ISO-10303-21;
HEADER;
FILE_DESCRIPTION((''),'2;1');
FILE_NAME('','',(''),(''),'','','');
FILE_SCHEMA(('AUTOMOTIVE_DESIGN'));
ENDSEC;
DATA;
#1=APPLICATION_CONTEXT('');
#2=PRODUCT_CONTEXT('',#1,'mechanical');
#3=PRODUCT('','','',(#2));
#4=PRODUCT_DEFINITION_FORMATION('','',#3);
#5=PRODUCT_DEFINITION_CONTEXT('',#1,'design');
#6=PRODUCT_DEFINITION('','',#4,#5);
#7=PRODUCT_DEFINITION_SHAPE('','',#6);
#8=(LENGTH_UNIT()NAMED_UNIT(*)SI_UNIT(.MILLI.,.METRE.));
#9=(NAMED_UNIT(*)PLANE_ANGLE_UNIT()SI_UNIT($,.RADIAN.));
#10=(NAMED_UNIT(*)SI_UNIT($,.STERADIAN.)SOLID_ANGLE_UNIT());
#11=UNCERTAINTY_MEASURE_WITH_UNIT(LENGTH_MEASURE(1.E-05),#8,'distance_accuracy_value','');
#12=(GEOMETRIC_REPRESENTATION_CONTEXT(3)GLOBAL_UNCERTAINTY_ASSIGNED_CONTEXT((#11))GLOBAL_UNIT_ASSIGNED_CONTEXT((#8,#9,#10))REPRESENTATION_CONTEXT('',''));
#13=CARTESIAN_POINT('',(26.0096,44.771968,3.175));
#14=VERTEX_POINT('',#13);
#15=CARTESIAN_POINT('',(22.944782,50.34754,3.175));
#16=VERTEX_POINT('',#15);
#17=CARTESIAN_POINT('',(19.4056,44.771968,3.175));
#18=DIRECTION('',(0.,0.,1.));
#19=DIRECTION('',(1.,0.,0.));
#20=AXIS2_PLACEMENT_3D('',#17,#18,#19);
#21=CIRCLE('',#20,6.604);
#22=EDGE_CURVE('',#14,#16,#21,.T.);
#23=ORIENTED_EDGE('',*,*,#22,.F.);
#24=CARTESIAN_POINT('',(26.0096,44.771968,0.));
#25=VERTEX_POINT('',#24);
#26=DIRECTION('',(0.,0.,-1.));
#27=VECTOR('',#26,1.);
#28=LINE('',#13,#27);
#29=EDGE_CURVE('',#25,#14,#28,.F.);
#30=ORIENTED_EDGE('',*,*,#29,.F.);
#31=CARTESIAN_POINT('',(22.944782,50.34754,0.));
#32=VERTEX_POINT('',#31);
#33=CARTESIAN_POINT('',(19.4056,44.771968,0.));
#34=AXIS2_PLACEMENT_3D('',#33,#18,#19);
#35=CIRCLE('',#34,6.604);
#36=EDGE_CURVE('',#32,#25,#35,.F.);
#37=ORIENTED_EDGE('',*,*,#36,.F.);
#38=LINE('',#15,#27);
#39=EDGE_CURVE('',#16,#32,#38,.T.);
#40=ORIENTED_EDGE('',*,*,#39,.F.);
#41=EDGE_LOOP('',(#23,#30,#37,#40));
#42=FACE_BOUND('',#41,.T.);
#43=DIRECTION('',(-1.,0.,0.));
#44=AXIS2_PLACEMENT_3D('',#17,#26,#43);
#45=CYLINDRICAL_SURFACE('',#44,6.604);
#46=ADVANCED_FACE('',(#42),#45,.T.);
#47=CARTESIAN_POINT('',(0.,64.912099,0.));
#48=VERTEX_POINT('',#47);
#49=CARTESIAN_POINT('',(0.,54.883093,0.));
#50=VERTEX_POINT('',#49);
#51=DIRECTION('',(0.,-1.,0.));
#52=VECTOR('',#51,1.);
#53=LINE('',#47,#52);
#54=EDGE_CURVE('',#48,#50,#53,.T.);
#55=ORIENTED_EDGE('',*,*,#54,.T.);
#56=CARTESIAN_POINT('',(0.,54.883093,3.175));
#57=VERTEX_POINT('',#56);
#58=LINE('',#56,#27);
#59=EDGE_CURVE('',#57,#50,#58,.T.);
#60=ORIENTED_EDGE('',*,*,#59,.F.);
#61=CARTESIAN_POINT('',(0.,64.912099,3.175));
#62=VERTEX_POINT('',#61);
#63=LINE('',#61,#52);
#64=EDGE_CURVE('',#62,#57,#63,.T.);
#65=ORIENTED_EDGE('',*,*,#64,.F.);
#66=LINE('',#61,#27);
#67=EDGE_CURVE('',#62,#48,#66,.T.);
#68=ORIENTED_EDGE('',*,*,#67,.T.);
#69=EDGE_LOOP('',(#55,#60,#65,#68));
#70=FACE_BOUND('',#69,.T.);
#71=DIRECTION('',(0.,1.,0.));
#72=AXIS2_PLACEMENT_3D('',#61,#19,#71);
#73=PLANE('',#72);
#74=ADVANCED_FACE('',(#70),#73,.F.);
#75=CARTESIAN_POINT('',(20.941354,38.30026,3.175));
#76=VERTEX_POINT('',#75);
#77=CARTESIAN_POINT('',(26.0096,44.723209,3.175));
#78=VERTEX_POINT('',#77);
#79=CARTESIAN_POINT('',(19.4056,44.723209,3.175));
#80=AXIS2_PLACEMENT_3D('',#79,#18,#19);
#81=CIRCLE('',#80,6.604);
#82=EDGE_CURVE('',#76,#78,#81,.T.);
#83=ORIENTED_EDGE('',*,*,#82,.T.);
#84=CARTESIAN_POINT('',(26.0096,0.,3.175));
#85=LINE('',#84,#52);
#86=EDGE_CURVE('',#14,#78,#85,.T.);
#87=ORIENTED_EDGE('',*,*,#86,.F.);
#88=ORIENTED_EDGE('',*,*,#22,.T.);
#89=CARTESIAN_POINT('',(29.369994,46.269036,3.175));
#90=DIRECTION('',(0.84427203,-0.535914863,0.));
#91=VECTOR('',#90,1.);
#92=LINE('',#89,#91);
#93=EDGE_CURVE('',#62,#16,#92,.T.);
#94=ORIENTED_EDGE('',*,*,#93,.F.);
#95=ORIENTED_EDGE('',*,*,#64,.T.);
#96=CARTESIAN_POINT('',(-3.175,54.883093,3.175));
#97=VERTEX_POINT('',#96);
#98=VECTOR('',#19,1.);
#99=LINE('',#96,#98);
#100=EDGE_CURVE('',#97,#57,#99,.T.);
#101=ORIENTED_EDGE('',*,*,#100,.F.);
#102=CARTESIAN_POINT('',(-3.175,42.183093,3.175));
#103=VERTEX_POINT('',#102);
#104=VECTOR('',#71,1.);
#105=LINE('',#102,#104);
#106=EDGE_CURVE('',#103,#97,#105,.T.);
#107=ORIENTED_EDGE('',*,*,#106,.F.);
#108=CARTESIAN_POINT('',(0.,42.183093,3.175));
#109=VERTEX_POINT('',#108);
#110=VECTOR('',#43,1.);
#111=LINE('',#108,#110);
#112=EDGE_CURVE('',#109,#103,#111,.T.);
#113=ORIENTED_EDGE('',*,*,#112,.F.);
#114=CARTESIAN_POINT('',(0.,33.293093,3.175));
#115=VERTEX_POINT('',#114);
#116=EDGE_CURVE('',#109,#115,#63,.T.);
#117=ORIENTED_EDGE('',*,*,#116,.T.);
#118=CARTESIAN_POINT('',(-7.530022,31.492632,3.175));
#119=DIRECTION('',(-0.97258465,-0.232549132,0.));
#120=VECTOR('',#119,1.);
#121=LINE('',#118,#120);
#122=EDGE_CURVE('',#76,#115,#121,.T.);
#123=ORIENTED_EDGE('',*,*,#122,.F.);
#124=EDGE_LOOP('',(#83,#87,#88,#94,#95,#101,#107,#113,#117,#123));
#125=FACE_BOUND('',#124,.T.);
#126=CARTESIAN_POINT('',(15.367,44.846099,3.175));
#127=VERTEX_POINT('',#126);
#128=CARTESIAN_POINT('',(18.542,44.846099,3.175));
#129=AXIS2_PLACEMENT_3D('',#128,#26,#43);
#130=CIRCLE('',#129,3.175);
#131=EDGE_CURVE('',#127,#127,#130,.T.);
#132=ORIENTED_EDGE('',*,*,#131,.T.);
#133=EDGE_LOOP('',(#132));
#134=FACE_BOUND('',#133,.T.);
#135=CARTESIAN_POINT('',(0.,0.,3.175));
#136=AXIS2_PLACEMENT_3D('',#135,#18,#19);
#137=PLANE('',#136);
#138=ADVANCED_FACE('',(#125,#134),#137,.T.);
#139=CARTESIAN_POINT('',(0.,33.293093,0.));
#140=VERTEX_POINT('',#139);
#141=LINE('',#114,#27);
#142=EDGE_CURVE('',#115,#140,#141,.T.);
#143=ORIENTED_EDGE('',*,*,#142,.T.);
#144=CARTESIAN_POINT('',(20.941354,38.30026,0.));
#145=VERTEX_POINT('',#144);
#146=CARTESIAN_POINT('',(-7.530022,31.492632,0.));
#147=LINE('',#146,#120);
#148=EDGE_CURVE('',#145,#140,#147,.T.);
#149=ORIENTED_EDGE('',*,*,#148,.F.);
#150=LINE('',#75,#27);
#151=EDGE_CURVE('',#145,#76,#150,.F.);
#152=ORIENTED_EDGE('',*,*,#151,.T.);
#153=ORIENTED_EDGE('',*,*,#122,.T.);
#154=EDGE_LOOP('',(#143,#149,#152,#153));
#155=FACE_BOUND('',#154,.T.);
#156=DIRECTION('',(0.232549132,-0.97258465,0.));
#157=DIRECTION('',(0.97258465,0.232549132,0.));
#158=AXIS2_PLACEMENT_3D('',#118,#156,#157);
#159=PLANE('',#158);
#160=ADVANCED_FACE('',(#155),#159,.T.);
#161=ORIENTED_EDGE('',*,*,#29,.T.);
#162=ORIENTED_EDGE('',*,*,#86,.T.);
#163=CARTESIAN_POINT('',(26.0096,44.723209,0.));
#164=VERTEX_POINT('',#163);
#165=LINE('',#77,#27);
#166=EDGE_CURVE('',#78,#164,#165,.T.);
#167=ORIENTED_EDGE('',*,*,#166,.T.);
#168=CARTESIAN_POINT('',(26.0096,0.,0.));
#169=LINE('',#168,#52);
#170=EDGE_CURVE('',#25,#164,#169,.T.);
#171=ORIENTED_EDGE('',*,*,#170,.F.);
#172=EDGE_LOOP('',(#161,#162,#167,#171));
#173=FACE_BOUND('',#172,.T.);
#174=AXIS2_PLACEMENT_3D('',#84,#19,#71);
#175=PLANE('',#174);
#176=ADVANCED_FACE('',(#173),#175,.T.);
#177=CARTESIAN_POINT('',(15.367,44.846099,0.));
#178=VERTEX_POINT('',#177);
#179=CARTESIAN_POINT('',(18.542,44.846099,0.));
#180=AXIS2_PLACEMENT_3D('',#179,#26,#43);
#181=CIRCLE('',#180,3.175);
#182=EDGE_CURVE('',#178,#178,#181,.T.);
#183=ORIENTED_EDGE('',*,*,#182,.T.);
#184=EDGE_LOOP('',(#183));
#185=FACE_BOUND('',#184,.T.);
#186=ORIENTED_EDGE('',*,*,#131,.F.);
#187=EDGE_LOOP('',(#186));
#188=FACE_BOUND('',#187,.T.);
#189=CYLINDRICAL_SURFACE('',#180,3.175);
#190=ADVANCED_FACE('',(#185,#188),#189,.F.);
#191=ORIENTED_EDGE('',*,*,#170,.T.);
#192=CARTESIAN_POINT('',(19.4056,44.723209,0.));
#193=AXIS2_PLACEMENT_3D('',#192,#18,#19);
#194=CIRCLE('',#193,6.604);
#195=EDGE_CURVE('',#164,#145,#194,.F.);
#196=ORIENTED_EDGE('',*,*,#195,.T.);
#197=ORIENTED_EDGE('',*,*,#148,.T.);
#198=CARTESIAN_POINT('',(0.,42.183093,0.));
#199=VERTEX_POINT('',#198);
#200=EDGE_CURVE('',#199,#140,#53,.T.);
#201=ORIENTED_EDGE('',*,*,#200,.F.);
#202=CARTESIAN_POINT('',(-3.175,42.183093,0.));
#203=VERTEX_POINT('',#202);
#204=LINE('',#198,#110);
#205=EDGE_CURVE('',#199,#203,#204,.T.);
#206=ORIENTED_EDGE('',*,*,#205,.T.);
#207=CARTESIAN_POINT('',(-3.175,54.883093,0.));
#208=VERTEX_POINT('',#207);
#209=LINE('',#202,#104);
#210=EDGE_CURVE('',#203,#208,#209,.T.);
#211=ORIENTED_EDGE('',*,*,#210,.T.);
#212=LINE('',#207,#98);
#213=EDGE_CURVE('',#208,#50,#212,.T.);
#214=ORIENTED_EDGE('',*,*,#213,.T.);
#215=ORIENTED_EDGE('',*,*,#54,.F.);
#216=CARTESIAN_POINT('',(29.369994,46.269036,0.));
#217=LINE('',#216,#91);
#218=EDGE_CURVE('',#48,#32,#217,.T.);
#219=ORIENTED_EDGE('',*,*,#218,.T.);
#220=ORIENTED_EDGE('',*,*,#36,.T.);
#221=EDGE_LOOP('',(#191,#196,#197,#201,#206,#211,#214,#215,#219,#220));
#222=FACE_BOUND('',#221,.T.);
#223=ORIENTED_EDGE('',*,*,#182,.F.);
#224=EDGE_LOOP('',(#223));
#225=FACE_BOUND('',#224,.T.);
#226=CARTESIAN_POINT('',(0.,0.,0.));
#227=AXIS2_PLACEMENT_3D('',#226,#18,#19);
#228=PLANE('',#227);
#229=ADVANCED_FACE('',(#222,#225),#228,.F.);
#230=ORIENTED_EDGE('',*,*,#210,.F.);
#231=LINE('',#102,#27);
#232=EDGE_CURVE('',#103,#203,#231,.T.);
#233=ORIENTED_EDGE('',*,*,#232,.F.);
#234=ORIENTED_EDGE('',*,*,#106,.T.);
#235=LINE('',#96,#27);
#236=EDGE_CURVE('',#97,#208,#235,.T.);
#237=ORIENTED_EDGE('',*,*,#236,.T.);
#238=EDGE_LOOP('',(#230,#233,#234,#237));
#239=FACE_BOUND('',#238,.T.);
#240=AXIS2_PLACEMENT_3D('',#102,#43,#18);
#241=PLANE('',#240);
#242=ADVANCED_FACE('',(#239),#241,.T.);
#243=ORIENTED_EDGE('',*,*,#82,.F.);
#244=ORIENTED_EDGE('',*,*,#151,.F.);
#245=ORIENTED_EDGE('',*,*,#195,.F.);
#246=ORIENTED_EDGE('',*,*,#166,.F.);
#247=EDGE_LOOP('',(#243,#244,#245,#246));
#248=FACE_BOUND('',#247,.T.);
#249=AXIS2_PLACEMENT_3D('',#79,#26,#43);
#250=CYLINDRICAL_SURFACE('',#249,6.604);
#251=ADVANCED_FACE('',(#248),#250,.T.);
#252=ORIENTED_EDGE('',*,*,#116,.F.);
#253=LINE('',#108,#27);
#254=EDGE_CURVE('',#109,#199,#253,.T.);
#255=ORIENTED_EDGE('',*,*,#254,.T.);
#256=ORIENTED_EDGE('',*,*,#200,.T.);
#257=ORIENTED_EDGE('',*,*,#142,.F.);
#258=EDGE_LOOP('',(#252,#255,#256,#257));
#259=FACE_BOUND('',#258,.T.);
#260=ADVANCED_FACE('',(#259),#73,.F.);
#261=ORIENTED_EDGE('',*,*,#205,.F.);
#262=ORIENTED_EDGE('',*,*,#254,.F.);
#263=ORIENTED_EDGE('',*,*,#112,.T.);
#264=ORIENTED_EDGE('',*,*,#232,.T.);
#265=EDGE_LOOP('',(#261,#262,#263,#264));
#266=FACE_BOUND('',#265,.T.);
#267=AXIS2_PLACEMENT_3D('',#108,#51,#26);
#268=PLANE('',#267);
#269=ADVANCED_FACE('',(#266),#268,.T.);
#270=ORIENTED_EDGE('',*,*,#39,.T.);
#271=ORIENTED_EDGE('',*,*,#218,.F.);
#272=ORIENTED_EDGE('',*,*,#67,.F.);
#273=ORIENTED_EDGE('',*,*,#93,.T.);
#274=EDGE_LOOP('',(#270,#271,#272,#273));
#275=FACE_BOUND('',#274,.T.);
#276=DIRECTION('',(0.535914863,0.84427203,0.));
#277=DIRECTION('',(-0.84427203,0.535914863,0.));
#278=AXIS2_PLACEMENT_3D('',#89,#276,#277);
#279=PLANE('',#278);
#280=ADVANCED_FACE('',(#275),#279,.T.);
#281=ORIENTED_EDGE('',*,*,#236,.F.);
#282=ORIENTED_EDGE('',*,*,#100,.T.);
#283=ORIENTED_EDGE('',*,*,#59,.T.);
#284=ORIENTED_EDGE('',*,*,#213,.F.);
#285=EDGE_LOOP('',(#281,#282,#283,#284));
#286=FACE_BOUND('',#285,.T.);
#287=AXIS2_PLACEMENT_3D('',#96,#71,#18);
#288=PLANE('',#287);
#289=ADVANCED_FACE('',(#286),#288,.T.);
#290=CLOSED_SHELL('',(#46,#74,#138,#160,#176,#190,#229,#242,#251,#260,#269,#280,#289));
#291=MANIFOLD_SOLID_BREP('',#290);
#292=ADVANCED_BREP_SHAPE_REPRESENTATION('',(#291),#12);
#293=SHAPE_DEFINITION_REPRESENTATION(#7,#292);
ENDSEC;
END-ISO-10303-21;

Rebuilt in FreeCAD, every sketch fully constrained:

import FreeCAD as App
import Part
import Sketcher
from FreeCAD import Vector
Q = App.Units.Quantity


def edges_at(feature, points):
    """Names of the edges that pass closest to the given points."""
    edges = feature.Shape.Edges
    near = lambda p: min(range(len(edges)), key=lambda i: edges[i].distToShape(Part.Vertex(*p))[0])
    return sorted({f"Edge{near(p) + 1}" for p in points})


def add_polygon(sketch, points):
    """Adds a closed chain of lines whose ends are joined by coincident constraints."""
    first, n = sketch.GeometryCount, len(points)
    for a, b in zip(points, points[1:] + points[:1]):
        sketch.addGeometry(Part.LineSegment(App.Vector(*a, 0), App.Vector(*b, 0)), False)
    for i in range(n):
        sketch.addConstraint(Sketcher.Constraint("Coincident", first + i, 2, first + (i + 1) % n, 1))

doc = App.newDocument("Part")
body = doc.addObject("PartDesign::Body", "Body")

# Sketch on XY plane
sketch1 = body.newObject("Sketcher::SketchObject", "Sketch")
sketch1.AttachmentSupport = (doc.getObject("XY_Plane"), [""])
sketch1.MapMode = "FlatFace"
add_polygon(sketch1, [(0, 65), (0, 0), (69, 0), (69, 65)])  # lines 0-3
sketch1.addConstraint([
    Sketcher.Constraint("Vertical", 0),
    Sketcher.Constraint("Horizontal", 1),
    Sketcher.Constraint("Vertical", 2),
    Sketcher.Constraint("Horizontal", 3),
    Sketcher.Constraint("Coincident", 0, 2, -1, 1),
    Sketcher.Constraint("DistanceY", 0, 2, 0, 1, 64.912099),
    Sketcher.Constraint("DistanceX", 1, 1, 1, 2, 68.548184),
])
pad1 = body.newObject("PartDesign::Pad", "Pad")
pad1.Profile = sketch1
pad1.Length = Q("0.125 in")

# Sketch on XY plane
sketch2 = body.newObject("Sketcher::SketchObject", "Sketch001")
sketch2.AttachmentSupport = (doc.getObject("XY_Plane"), [""])
sketch2.MapMode = "FlatFace"
sketch2.addGeometry(Part.Circle(Vector(18.5, 44.8, 0), Vector(0, 0, 1), 3.2), False)
sketch2.addConstraint([
    Sketcher.Constraint("Diameter", 0, Q("0.25 in")),
    Sketcher.Constraint("DistanceX", -1, 1, 0, 3, Q("0.73 in")),
    Sketcher.Constraint("DistanceY", -1, 1, 0, 3, 44.846099),
])
doc.recompute()
hole = body.newObject("PartDesign::Hole", "Hole")
hole.Profile = sketch2
hole.ThreadType = "None"
hole.Diameter = Q("0.25 in")
hole.DepthType = "ThroughAll"
hole.Reversed = True

# Sketch on XY plane
sketch3 = body.newObject("Sketcher::SketchObject", "Sketch002")
sketch3.AttachmentSupport = (doc.getObject("XY_Plane"), [""])
sketch3.MapMode = "FlatFace"
add_polygon(sketch3, [(26, 48), (0, 65), (69, 65), (69, 0), (0, 0), (0, 33), (26, 40)])  # lines 0-6
sketch3.addConstraint([
    Sketcher.Constraint("Horizontal", 1),
    Sketcher.Constraint("Vertical", 2),
    Sketcher.Constraint("Horizontal", 3),
    Sketcher.Constraint("Vertical", 4),
    Sketcher.Constraint("Vertical", 6),
    Sketcher.Constraint("Coincident", 3, 2, -1, 1),
    Sketcher.Constraint("PointOnObject", 0, 2, -2),
    Sketcher.Constraint("DistanceY", 5, 2, 0, 2, Q("1 in")),
    Sketcher.Constraint("DistanceY", 6, 1, 6, 2, Q("0.35 in")),
    Sketcher.Constraint("DistanceX", -1, 1, 5, 2, Q("1.024 in")),
    Sketcher.Constraint("DistanceY", 2, 2, 2, 1, 64.912099),
    Sketcher.Constraint("DistanceX", 1, 1, 1, 2, 68.548184),
    Sketcher.Constraint("DistanceY", 4, 1, 4, 2, 33.293093),
])
pocket1 = body.newObject("PartDesign::Pocket", "Pocket")
pocket1.Profile = sketch3
pocket1.Type = "ThroughAll"
pocket1.Reversed = True
doc.recompute()

fillet = body.newObject("PartDesign::Fillet", "Fillet")
fillet.Base = (pocket1, edges_at(pocket1, [(26.01, 39.512, 1.587), (26.01, 48.402, 1.587)]))
fillet.Radius = Q("0.26 in")

# Sketch on XY plane
sketch4 = body.newObject("Sketcher::SketchObject", "Sketch003")
sketch4.AttachmentSupport = (doc.getObject("XY_Plane"), [""])
sketch4.MapMode = "FlatFace"
add_polygon(sketch4, [(0, 54.9), (0, 42.2), (-3.2, 42.2), (-3.2, 54.9)])  # lines 0-3
sketch4.addConstraint([
    Sketcher.Constraint("Vertical", 0),
    Sketcher.Constraint("Horizontal", 1),
    Sketcher.Constraint("Vertical", 2),
    Sketcher.Constraint("Horizontal", 3),
    Sketcher.Constraint("PointOnObject", 0, 2, -2),
    Sketcher.Constraint("DistanceY", 0, 2, 0, 1, Q("0.5 in")),
    Sketcher.Constraint("DistanceX", 1, 2, 1, 1, Q("0.125 in")),
    Sketcher.Constraint("DistanceY", -1, 1, 0, 2, 42.183093),
])
pad2 = body.newObject("PartDesign::Pad", "Pad001")
pad2.Profile = sketch4
pad2.Length = Q("0.125 in")

doc.recompute()
